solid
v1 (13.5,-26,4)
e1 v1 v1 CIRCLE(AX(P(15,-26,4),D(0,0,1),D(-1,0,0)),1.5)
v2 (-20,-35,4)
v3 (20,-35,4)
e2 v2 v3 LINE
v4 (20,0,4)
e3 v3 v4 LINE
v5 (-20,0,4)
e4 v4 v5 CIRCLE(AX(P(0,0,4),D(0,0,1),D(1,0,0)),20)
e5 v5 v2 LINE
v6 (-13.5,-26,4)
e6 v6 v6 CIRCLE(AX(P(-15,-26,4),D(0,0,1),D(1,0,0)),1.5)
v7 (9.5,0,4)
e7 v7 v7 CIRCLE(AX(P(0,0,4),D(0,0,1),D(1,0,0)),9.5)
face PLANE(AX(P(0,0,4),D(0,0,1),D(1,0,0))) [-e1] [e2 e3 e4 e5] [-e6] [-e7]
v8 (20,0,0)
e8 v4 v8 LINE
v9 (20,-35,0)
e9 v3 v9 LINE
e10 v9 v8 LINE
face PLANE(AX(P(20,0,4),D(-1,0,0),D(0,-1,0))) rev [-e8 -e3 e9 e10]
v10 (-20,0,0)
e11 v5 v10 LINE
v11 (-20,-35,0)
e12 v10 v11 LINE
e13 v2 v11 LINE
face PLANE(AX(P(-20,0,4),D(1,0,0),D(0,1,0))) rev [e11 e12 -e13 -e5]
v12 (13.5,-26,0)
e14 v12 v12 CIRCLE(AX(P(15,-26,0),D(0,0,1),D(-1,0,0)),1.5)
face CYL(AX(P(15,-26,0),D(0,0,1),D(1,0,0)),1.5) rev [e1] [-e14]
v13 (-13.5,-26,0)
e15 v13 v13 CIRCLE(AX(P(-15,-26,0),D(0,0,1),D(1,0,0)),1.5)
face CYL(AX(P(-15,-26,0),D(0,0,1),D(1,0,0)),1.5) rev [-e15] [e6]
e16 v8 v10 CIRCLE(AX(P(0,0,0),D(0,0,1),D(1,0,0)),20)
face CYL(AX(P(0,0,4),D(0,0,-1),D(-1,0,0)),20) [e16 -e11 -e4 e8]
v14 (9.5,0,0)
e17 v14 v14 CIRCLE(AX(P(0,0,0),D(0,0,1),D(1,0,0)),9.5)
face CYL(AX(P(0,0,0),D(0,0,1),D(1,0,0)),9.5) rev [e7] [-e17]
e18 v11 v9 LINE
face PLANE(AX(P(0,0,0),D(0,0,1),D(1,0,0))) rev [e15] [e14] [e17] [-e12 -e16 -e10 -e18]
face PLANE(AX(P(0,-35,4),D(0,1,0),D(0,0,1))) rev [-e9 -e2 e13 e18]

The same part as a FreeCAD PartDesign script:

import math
import FreeCAD as App
import Part
import Sketcher
from FreeCAD import Vector
Q = App.Units.Quantity

doc = App.newDocument("Part")
body = doc.addObject("PartDesign::Body", "Body")

sketch1 = doc.addObject("Sketcher::SketchObject", "Sketch")
body.addObject(sketch1)
sketch1.AttachmentSupport = (doc.XY_Plane, [""])
sketch1.MapMode = "FlatFace"
sketch1.addGeometry(Part.ArcOfCircle(Part.Circle(Vector(0, 0, 0), Vector(0, 0, 1), 20), math.radians(0), math.radians(180)), False)
sketch1.addGeometry(Part.LineSegment(Vector(-20, 0, 0), Vector(-20, -35, 0)), False)
sketch1.addGeometry(Part.LineSegment(Vector(-20, -35, 0), Vector(20, -35, 0)), False)
sketch1.addGeometry(Part.LineSegment(Vector(20, -35, 0), Vector(20, 0, 0)), False)
sketch1.addConstraint(Sketcher.Constraint("Tangent", 0, 2, 1, 1))
sketch1.addConstraint(Sketcher.Constraint("Coincident", 1, 2, 2, 1))
sketch1.addConstraint(Sketcher.Constraint("Coincident", 2, 2, 3, 1))
sketch1.addConstraint(Sketcher.Constraint("Tangent", 3, 2, 0, 1))
sketch1.addConstraint(Sketcher.Constraint("Vertical", 1))
sketch1.addConstraint(Sketcher.Constraint("Horizontal", 2))
sketch1.addConstraint(Sketcher.Constraint("Vertical", 3))
sketch1.addConstraint(Sketcher.Constraint("Coincident", 0, 3, -1, 1))
sketch1.addConstraint(Sketcher.Constraint("Radius", 0, Q("20 mm")))
sketch1.addConstraint(Sketcher.Constraint("DistanceY", 1, 2, 1, 1, Q("35 mm")))
pad1 = doc.addObject("PartDesign::Pad", "Pad")
body.addObject(pad1)
pad1.Profile = sketch1
pad1.Length = 4

sketch2 = doc.addObject("Sketcher::SketchObject", "Sketch001")
body.addObject(sketch2)
sketch2.AttachmentSupport = (doc.XY_Plane, [""])
sketch2.MapMode = "FlatFace"
sketch2.AttachmentOffset = App.Placement(Vector(0, 0, 4), App.Rotation())
sketch2.addGeometry(Part.Circle(Vector(0, 0, 0), Vector(0, 0, 1), 9.5), False)
sketch2.addConstraint(Sketcher.Constraint("Coincident", 0, 3, -1, 1))
sketch2.addConstraint(Sketcher.Constraint("Diameter", 0, Q("19 mm")))
pocket1 = doc.addObject("PartDesign::Pocket", "Pocket")
body.addObject(pocket1)
pocket1.Profile = sketch2
pocket1.Type = "ThroughAll"

sketch3 = doc.addObject("Sketcher::SketchObject", "Sketch002")
body.addObject(sketch3)
sketch3.AttachmentSupport = (doc.XY_Plane, [""])
sketch3.MapMode = "FlatFace"
sketch3.AttachmentOffset = App.Placement(Vector(0, 0, 4), App.Rotation())
sketch3.addGeometry(Part.Circle(Vector(-15, -26, 0), Vector(0, 0, 1), 1.5), False)
sketch3.addGeometry(Part.Circle(Vector(15, -26, 0), Vector(0, 0, 1), 1.5), False)
sketch3.addConstraint(Sketcher.Constraint("Equal", 0, 1))
sketch3.addConstraint(Sketcher.Constraint("Symmetric", 0, 3, 1, 3, -2))
sketch3.addConstraint(Sketcher.Constraint("Diameter", 0, Q("3 mm")))
sketch3.addConstraint(Sketcher.Constraint("DistanceX", 0, 3, -1, 1, Q("15 mm")))
sketch3.addConstraint(Sketcher.Constraint("DistanceY", 0, 3, -1, 1, Q("26 mm")))
pocket2 = doc.addObject("PartDesign::Pocket", "Pocket001")
body.addObject(pocket2)
pocket2.Profile = sketch3
pocket2.Type = "ThroughAll"

doc.recompute()
